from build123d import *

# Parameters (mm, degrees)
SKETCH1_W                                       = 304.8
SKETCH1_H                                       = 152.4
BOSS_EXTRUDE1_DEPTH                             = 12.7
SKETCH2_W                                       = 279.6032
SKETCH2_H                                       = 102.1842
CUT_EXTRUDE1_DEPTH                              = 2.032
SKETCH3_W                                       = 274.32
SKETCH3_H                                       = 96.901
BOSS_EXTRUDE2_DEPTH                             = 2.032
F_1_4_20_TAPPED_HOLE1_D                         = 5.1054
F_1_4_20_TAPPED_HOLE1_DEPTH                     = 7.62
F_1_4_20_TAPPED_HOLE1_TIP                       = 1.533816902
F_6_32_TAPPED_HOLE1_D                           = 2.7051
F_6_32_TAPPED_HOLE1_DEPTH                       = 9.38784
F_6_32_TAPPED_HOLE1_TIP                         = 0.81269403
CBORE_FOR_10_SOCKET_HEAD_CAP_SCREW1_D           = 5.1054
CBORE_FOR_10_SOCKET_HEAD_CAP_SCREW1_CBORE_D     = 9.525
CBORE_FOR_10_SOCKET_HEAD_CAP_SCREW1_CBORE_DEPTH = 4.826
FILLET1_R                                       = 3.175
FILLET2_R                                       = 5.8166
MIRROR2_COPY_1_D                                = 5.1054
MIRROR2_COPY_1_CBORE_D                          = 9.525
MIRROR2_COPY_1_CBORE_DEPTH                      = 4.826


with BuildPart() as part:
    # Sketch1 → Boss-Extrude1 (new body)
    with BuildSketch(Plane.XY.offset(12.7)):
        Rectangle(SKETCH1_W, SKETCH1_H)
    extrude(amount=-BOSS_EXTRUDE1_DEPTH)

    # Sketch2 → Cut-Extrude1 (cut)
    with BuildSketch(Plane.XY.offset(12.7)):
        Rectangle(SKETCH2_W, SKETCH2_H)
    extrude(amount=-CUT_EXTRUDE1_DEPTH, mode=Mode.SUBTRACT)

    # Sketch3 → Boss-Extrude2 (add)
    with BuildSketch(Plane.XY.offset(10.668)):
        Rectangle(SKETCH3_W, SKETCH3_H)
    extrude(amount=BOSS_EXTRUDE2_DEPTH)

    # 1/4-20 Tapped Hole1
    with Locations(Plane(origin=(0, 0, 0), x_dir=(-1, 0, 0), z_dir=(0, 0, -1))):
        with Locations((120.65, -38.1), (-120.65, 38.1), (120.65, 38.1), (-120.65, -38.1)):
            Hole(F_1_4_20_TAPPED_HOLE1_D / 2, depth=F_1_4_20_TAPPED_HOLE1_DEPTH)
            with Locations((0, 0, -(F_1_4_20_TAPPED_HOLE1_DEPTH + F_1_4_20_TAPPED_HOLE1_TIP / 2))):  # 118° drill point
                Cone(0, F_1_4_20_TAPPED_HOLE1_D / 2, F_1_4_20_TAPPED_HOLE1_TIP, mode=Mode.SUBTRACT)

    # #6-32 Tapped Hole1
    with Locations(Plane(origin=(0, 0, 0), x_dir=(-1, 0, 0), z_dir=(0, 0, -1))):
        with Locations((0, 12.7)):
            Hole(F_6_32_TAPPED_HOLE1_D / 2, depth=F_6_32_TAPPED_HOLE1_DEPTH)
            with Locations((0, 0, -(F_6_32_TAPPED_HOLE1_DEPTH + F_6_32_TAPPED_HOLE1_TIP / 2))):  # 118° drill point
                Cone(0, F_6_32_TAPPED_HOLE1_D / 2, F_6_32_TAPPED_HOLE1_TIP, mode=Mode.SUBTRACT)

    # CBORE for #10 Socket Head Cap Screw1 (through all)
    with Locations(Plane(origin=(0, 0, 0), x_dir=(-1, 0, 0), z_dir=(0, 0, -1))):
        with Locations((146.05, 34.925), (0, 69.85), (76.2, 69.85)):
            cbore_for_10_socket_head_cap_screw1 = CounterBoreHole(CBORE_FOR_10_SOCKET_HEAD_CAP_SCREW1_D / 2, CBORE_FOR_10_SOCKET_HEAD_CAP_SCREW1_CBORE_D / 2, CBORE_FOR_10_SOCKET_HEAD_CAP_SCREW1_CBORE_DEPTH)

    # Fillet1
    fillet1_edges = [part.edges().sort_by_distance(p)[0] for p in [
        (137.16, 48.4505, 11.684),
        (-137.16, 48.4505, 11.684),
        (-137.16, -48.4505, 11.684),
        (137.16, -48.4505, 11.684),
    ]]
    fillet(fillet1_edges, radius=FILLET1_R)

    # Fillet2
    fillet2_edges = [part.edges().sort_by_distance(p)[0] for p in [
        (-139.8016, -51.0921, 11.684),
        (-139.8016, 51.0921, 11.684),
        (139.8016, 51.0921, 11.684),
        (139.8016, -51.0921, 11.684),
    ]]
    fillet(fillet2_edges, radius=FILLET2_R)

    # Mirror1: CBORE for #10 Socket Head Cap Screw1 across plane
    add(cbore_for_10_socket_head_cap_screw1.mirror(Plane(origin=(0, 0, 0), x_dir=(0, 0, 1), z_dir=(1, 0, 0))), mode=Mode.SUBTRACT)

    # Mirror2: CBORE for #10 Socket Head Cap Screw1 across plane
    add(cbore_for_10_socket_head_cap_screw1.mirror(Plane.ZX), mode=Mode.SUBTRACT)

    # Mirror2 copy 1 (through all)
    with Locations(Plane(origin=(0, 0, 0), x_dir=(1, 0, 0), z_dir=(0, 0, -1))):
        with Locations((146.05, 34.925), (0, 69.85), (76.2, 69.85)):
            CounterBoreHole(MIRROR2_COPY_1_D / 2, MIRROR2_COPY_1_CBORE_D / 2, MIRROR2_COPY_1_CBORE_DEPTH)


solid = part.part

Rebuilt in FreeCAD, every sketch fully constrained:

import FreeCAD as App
import Part
import Sketcher
Q = App.Units.Quantity


def edges_at(feature, points):
    """Names of the edges that pass closest to the given points."""
    edges = feature.Shape.Edges
    near = lambda p: min(range(len(edges)), key=lambda i: edges[i].distToShape(Part.Vertex(*p))[0])
    return sorted({f"Edge{near(p) + 1}" for p in points})

doc = App.newDocument("Part")
body = doc.addObject("PartDesign::Body", "Body")

# Sketch on XY plane
sketch1 = doc.addObject("Sketcher::SketchObject", "Sketch")
body.addObject(sketch1)
sketch1.AttachmentSupport = (doc.XY_Plane, [""])
sketch1.MapMode = "FlatFace"
sketch1.AttachmentOffset = App.Placement(App.Vector(0, 0, 0.5 * 25.4), App.Rotation())
sketch1.addGeometry([
    Part.LineSegment(App.Vector(-152, 76, 0), App.Vector(-152, -76, 0)),
    Part.LineSegment(App.Vector(-152, -76, 0), App.Vector(152, -76, 0)),
    Part.LineSegment(App.Vector(152, -76, 0), App.Vector(152, 76, 0)),
    Part.LineSegment(App.Vector(152, 76, 0), App.Vector(-152, 76, 0)),
], False)
sketch1.addConstraint([
    Sketcher.Constraint("Coincident", 0, 2, 1, 1),
    Sketcher.Constraint("Coincident", 1, 2, 2, 1),
    Sketcher.Constraint("Coincident", 2, 2, 3, 1),
    Sketcher.Constraint("Coincident", 3, 2, 0, 1),
    Sketcher.Constraint("Vertical", 0),
    Sketcher.Constraint("Horizontal", 1),
    Sketcher.Constraint("Vertical", 2),
    Sketcher.Constraint("Horizontal", 3),
    Sketcher.Constraint("Symmetric", 0, 2, 2, 2, -1, 1),
    Sketcher.Constraint("DistanceX", 1, 1, 1, 2, Q("12 in")),
    Sketcher.Constraint("DistanceY", 0, 2, 0, 1, Q("6 in")),
])
pad1 = doc.addObject("PartDesign::Pad", "Pad")
body.addObject(pad1)
pad1.Profile = sketch1
pad1.Length = Q("0.5 in")
pad1.Reversed = True

# Sketch on XY plane
sketch2 = doc.addObject("Sketcher::SketchObject", "Sketch001")
body.addObject(sketch2)
sketch2.AttachmentSupport = (doc.XY_Plane, [""])
sketch2.MapMode = "FlatFace"
sketch2.AttachmentOffset = App.Placement(App.Vector(0, 0, 0.5 * 25.4), App.Rotation())
sketch2.addGeometry([
    Part.LineSegment(App.Vector(-140, 51, 0), App.Vector(-140, -51, 0)),
    Part.LineSegment(App.Vector(-140, -51, 0), App.Vector(140, -51, 0)),
    Part.LineSegment(App.Vector(140, -51, 0), App.Vector(140, 51, 0)),
    Part.LineSegment(App.Vector(140, 51, 0), App.Vector(-140, 51, 0)),
], False)
sketch2.addConstraint([
    Sketcher.Constraint("Coincident", 0, 2, 1, 1),
    Sketcher.Constraint("Coincident", 1, 2, 2, 1),
    Sketcher.Constraint("Coincident", 2, 2, 3, 1),
    Sketcher.Constraint("Coincident", 3, 2, 0, 1),
    Sketcher.Constraint("Vertical", 0),
    Sketcher.Constraint("Horizontal", 1),
    Sketcher.Constraint("Vertical", 2),
    Sketcher.Constraint("Horizontal", 3),
    Sketcher.Constraint("Symmetric", 0, 2, 2, 2, -1, 1),
    Sketcher.Constraint("DistanceX", 1, 1, 1, 2, Q("11.008 in")),
    Sketcher.Constraint("DistanceY", 0, 2, 0, 1, Q("4.023 in")),
])
pocket1 = doc.addObject("PartDesign::Pocket", "Pocket")
body.addObject(pocket1)
pocket1.Profile = sketch2
pocket1.Length = Q("0.08 in")

# Sketch on XY plane
sketch3 = doc.addObject("Sketcher::SketchObject", "Sketch002")
body.addObject(sketch3)
sketch3.AttachmentSupport = (doc.XY_Plane, [""])
sketch3.MapMode = "FlatFace"
sketch3.AttachmentOffset = App.Placement(App.Vector(0, 0, 0.42 * 25.4), App.Rotation())
sketch3.addGeometry([
    Part.LineSegment(App.Vector(-137, 48, 0), App.Vector(-137, -48, 0)),
    Part.LineSegment(App.Vector(-137, -48, 0), App.Vector(137, -48, 0)),
    Part.LineSegment(App.Vector(137, -48, 0), App.Vector(137, 48, 0)),
    Part.LineSegment(App.Vector(137, 48, 0), App.Vector(-137, 48, 0)),
], False)
sketch3.addConstraint([
    Sketcher.Constraint("Coincident", 0, 2, 1, 1),
    Sketcher.Constraint("Coincident", 1, 2, 2, 1),
    Sketcher.Constraint("Coincident", 2, 2, 3, 1),
    Sketcher.Constraint("Coincident", 3, 2, 0, 1),
    Sketcher.Constraint("Vertical", 0),
    Sketcher.Constraint("Horizontal", 1),
    Sketcher.Constraint("Vertical", 2),
    Sketcher.Constraint("Horizontal", 3),
    Sketcher.Constraint("Symmetric", 0, 2, 2, 2, -1, 1),
    Sketcher.Constraint("DistanceX", 1, 1, 1, 2, Q("10.8 in")),
    Sketcher.Constraint("DistanceY", 0, 2, 0, 1, Q("3.815 in")),
])
pad2 = doc.addObject("PartDesign::Pad", "Pad001")
body.addObject(pad2)
pad2.Profile = sketch3
pad2.Length = Q("0.08 in")

# Sketch on XY plane
sketch4 = doc.addObject("Sketcher::SketchObject", "Sketch003")
body.addObject(sketch4)
sketch4.AttachmentSupport = (doc.XY_Plane, [""])
sketch4.MapMode = "FlatFace"
sketch4.addGeometry([
    Part.Circle(App.Vector(-120.7, -38.1, 0), App.Vector(0, 0, 1), 2.6),
    Part.Circle(App.Vector(120.7, 38.1, 0), App.Vector(0, 0, 1), 2.6),
    Part.Circle(App.Vector(-120.7, 38.1, 0), App.Vector(0, 0, 1), 2.6),
    Part.Circle(App.Vector(120.7, -38.1, 0), App.Vector(0, 0, 1), 2.6),
], False)
sketch4.addConstraint([
    Sketcher.Constraint("Equal", 0, 1),
    Sketcher.Constraint("Equal", 1, 2),
    Sketcher.Constraint("Equal", 2, 3),
    Sketcher.Constraint("Symmetric", 0, 3, 1, 3, -1, 1),
    Sketcher.Constraint("Symmetric", 2, 3, 3, 3, -1, 1),
    Sketcher.Constraint("Symmetric", 1, 3, 2, 3, -2),
    Sketcher.Constraint("Diameter", 0, Q("0.201 in")),
    Sketcher.Constraint("DistanceY", 0, 3, 1, 3, Q("3 in")),
    Sketcher.Constraint("DistanceX", 0, 3, 1, 3, Q("9.5 in")),
])
doc.recompute()
hole = doc.addObject("PartDesign::Hole", "Hole")
body.addObject(hole)
hole.Profile = sketch4
hole.ThreadType = "None"
hole.Diameter = Q("0.201 in")
hole.DepthType = "Dimension"
hole.Depth = Q("0.3 in")
hole.DrillPoint = "Angled"
hole.DrillPointAngle = 118
hole.Reversed = True

# Sketch on XY plane
sketch5 = doc.addObject("Sketcher::SketchObject", "Sketch004")
body.addObject(sketch5)
sketch5.AttachmentSupport = (doc.XY_Plane, [""])
sketch5.MapMode = "FlatFace"
sketch5.addGeometry(Part.Circle(App.Vector(0, 12.7, 0), App.Vector(0, 0, 1), 1.4), False)
sketch5.addConstraint([
    Sketcher.Constraint("PointOnObject", 0, 3, -2),
    Sketcher.Constraint("Diameter", 0, Q("0.1065 in")),
    Sketcher.Constraint("DistanceY", -1, 1, 0, 3, Q("0.5 in")),
])
doc.recompute()
hole2 = doc.addObject("PartDesign::Hole", "Hole001")
body.addObject(hole2)
hole2.Profile = sketch5
hole2.ThreadType = "None"
hole2.Diameter = Q("0.1065 in")
hole2.DepthType = "Dimension"
hole2.Depth = Q("0.3696 in")
hole2.DrillPoint = "Angled"
hole2.DrillPointAngle = 118
hole2.Reversed = True

# Sketch on XY plane
sketch6 = doc.addObject("Sketcher::SketchObject", "Sketch005")
body.addObject(sketch6)
sketch6.AttachmentSupport = (doc.XY_Plane, [""])
sketch6.MapMode = "FlatFace"
sketch6.addGeometry([
    Part.Circle(App.Vector(-146.1, 34.9, 0), App.Vector(0, 0, 1), 2.6),
    Part.Circle(App.Vector(0, 69.8, 0), App.Vector(0, 0, 1), 2.6),
    Part.Circle(App.Vector(-76.2, 69.8, 0), App.Vector(0, 0, 1), 2.6),
], False)
sketch6.addConstraint([
    Sketcher.Constraint("Equal", 0, 1),
    Sketcher.Constraint("Equal", 1, 2),
    Sketcher.Constraint("PointOnObject", 1, 3, -2),
    Sketcher.Constraint("Horizontal", 1, 3, 2, 3),
    Sketcher.Constraint("Diameter", 0, Q("0.201 in")),
    Sketcher.Constraint("DistanceX", 2, 3, -1, 1, Q("3 in")),
    Sketcher.Constraint("DistanceX", 0, 3, -1, 1, Q("5.75 in")),
    Sketcher.Constraint("DistanceY", -1, 1, 1, 3, Q("2.75 in")),
    Sketcher.Constraint("DistanceY", -1, 1, 0, 3, Q("1.375 in")),
])
doc.recompute()
hole3 = doc.addObject("PartDesign::Hole", "Hole002")
body.addObject(hole3)
hole3.Profile = sketch6
hole3.ThreadType = "None"
hole3.Diameter = Q("0.201 in")
hole3.DepthType = "ThroughAll"
hole3.HoleCutType = "Counterbore"
hole3.HoleCutDiameter = Q("0.375 in")
hole3.HoleCutDepth = Q("0.19 in")
hole3.Reversed = True
doc.recompute()

fillet = doc.addObject("PartDesign::Fillet", "Fillet")
body.addObject(fillet)
fillet.Base = (hole3, edges_at(hole3, [
    (137.16, 48.45, 11.684),
    (-137.16, 48.45, 11.684),
    (-137.16, -48.45, 11.684),
    (137.16, -48.45, 11.684),
]))
fillet.Radius = Q("0.125 in")
doc.recompute()

fillet2 = doc.addObject("PartDesign::Fillet", "Fillet001")
body.addObject(fillet2)
fillet2.Base = (fillet, edges_at(fillet, [
    (-139.802, -51.092, 11.684),
    (-139.802, 51.092, 11.684),
    (139.802, 51.092, 11.684),
    (139.802, -51.092, 11.684),
]))
fillet2.Radius = Q("0.229 in")
doc.recompute()

mirrored = doc.addObject("PartDesign::Mirrored", "Mirrored")
body.addObject(mirrored)
mirrored.Originals = [hole3]
mirrored.MirrorPlane = (doc.YZ_Plane, [""])
body.Tip = mirrored
doc.recompute()

mirrored2 = doc.addObject("PartDesign::Mirrored", "Mirrored001")
body.addObject(mirrored2)
mirrored2.Originals = [hole3]
mirrored2.MirrorPlane = (doc.XZ_Plane, [""])
body.Tip = mirrored2

# Sketch on XY plane
sketch7 = doc.addObject("Sketcher::SketchObject", "Sketch006")
body.addObject(sketch7)
sketch7.AttachmentSupport = (doc.XY_Plane, [""])
sketch7.MapMode = "FlatFace"
sketch7.addGeometry([
    Part.Circle(App.Vector(146.1, -34.9, 0), App.Vector(0, 0, 1), 2.6),
    Part.Circle(App.Vector(0, -69.8, 0), App.Vector(0, 0, 1), 2.6),
    Part.Circle(App.Vector(76.2, -69.8, 0), App.Vector(0, 0, 1), 2.6),
], False)
sketch7.addConstraint([
    Sketcher.Constraint("Equal", 0, 1),
    Sketcher.Constraint("Equal", 1, 2),
    Sketcher.Constraint("PointOnObject", 1, 3, -2),
    Sketcher.Constraint("Horizontal", 1, 3, 2, 3),
    Sketcher.Constraint("Diameter", 0, Q("0.201 in")),
    Sketcher.Constraint("DistanceX", -1, 1, 2, 3, Q("3 in")),
    Sketcher.Constraint("DistanceX", -1, 1, 0, 3, Q("5.75 in")),
    Sketcher.Constraint("DistanceY", 1, 3, -1, 1, Q("2.75 in")),
    Sketcher.Constraint("DistanceY", 0, 3, -1, 1, Q("1.375 in")),
])
doc.recompute()
hole4 = doc.addObject("PartDesign::Hole", "Hole003")
body.addObject(hole4)
hole4.Profile = sketch7
hole4.ThreadType = "None"
hole4.Diameter = Q("0.201 in")
hole4.DepthType = "ThroughAll"
hole4.HoleCutType = "Counterbore"
hole4.HoleCutDiameter = Q("0.375 in")
hole4.HoleCutDepth = Q("0.19 in")
hole4.Reversed = True

doc.recompute()
